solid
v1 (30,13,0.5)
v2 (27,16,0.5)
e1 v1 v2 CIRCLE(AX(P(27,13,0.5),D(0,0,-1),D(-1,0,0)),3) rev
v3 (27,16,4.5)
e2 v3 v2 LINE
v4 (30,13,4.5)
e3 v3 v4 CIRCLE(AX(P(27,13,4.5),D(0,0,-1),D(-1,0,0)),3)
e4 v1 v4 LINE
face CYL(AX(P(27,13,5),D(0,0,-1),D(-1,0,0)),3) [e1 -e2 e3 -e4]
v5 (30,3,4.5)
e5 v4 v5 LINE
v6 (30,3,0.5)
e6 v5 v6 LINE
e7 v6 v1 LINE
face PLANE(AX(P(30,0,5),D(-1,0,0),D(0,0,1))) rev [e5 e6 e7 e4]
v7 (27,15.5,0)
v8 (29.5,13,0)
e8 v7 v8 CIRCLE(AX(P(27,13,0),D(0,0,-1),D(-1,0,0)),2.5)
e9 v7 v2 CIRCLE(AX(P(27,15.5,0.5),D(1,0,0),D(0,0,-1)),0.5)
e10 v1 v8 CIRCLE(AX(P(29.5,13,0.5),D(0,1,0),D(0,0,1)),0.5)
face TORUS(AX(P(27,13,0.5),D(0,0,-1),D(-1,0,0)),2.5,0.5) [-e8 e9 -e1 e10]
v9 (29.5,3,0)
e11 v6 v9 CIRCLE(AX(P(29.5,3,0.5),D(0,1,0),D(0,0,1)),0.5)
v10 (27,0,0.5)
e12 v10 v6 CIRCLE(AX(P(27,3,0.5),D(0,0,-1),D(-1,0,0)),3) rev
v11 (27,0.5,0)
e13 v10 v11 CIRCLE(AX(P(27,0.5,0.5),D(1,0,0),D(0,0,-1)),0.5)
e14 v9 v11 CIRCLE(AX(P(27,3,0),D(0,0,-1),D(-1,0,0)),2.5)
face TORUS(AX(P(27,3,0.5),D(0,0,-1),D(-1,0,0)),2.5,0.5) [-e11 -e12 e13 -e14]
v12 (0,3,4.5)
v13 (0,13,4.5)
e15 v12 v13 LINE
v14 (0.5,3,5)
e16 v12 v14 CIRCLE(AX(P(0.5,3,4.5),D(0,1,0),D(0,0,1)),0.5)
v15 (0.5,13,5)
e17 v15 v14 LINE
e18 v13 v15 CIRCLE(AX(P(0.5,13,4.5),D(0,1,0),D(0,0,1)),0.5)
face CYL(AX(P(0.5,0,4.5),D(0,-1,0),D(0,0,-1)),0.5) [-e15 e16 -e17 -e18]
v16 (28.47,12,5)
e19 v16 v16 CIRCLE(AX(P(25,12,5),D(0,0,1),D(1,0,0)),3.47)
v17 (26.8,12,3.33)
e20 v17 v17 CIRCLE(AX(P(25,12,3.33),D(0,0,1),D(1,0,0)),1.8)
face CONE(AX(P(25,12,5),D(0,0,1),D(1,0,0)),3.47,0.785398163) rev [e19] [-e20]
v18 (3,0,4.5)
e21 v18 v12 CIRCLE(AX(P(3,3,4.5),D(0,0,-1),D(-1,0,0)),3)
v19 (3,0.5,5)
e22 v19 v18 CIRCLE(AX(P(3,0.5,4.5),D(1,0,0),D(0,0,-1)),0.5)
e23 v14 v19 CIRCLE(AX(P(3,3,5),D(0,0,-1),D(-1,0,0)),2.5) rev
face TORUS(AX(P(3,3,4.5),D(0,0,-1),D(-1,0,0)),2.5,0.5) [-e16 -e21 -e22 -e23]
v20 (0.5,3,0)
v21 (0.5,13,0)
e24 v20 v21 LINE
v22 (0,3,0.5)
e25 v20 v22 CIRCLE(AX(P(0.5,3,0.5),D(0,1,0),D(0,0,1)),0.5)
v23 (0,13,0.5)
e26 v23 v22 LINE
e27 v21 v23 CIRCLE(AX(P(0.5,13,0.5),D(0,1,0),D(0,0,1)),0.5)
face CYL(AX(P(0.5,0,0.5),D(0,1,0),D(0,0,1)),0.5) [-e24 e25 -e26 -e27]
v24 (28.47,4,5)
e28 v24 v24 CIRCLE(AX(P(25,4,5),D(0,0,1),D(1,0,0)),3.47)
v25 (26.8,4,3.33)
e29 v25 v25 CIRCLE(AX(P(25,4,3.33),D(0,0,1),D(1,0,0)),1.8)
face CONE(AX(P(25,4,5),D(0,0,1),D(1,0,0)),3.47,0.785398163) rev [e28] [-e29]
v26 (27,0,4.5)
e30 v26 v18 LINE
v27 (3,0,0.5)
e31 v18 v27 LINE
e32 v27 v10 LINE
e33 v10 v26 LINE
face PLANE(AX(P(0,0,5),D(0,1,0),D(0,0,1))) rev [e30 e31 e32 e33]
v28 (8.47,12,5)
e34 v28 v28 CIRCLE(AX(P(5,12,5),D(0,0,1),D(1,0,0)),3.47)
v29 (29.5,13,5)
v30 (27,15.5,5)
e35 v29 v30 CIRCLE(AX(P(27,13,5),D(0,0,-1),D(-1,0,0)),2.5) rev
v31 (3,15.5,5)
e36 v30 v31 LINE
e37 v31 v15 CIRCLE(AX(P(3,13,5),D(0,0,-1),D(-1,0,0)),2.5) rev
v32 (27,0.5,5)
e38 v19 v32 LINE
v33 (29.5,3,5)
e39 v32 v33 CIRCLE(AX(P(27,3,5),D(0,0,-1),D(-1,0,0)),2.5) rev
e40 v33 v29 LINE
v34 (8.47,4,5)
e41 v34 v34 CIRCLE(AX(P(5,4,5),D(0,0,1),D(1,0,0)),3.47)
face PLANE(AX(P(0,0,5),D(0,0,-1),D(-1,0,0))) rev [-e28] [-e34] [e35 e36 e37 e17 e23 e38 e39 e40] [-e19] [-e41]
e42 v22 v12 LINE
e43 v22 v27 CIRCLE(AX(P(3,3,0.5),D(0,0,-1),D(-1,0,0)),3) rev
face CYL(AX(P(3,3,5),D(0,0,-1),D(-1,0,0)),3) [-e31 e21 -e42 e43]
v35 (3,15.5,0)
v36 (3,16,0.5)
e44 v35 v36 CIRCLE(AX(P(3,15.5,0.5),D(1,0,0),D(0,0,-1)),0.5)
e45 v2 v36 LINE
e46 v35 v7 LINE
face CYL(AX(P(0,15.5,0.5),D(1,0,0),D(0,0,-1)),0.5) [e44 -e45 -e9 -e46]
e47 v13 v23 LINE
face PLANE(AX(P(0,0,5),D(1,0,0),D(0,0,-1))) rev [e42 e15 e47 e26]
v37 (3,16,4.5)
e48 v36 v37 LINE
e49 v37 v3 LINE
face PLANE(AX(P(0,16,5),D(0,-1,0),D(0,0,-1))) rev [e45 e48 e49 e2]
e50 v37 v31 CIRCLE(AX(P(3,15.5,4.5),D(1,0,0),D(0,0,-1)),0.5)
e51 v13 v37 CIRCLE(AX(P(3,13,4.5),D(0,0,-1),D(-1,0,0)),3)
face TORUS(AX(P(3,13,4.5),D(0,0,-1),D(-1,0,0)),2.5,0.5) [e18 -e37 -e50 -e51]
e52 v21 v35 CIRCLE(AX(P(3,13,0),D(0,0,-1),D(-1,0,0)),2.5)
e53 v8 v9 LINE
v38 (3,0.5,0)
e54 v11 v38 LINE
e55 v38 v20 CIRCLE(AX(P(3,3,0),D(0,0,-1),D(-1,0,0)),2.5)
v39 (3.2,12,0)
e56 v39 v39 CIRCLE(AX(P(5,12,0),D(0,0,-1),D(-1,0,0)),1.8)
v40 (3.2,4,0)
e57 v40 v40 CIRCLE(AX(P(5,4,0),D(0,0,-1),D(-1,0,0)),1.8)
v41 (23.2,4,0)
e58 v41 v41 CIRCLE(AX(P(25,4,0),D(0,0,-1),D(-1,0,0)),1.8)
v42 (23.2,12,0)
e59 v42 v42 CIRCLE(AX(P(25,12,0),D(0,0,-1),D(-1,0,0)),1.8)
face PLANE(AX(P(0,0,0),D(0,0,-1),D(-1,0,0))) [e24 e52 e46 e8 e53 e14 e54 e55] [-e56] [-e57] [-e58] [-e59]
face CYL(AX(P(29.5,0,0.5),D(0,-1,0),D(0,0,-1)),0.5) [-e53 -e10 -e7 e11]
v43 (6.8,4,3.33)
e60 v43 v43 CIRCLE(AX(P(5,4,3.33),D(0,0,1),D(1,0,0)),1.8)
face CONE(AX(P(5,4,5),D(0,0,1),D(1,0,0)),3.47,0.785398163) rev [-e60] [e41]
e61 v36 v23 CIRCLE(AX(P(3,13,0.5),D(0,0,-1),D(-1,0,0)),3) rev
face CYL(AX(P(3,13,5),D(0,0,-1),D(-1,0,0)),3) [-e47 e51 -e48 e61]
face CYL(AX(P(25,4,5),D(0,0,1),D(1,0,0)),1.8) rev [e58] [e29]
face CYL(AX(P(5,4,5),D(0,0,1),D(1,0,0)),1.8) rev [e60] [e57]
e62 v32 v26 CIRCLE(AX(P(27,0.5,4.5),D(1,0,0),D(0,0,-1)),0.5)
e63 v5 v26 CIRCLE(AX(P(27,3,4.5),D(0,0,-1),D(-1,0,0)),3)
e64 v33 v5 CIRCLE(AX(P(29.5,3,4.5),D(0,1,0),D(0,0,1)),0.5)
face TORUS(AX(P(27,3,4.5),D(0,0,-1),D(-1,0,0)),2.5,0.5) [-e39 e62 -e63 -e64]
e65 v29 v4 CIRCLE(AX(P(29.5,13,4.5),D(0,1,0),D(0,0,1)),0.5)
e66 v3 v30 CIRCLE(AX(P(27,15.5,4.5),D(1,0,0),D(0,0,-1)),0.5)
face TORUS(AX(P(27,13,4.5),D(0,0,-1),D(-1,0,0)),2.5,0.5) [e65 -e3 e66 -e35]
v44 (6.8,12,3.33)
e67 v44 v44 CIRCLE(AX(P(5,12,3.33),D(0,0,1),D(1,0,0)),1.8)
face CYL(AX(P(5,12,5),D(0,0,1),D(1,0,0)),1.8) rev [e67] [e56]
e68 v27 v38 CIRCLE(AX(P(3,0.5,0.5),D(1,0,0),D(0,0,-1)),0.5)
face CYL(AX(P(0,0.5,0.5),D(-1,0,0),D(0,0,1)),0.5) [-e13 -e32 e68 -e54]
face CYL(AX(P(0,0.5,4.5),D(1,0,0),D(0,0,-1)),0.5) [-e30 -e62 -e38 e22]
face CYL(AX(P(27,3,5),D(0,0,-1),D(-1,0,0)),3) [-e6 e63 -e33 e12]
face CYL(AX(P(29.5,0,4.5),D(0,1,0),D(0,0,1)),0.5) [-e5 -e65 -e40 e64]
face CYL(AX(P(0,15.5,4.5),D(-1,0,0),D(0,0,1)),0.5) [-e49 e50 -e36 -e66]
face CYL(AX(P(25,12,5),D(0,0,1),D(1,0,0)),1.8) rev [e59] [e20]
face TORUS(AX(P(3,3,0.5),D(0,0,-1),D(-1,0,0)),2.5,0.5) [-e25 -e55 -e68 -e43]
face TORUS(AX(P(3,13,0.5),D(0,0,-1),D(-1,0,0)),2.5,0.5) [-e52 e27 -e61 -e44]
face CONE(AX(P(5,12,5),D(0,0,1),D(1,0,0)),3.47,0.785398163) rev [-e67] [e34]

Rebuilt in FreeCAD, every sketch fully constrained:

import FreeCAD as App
import Part
import Sketcher
Q = App.Units.Quantity


def edges_at(feature, points):
    """Names of the edges that pass closest to the given points."""
    edges = feature.Shape.Edges
    near = lambda p: min(range(len(edges)), key=lambda i: edges[i].distToShape(Part.Vertex(*p))[0])
    return sorted({f"Edge{near(p) + 1}" for p in points})

doc = App.newDocument("Part")
body = doc.addObject("PartDesign::Body", "Body")

# Sketch on XY plane
sketch1 = body.newObject("Sketcher::SketchObject", "Sketch")
sketch1.AttachmentSupport = (doc.getObject("XY_Plane"), [""])
sketch1.MapMode = "FlatFace"
sketch1.addGeometry([
    Part.LineSegment(App.Vector(0, 16, 0), App.Vector(0, 0, 0)),
    Part.LineSegment(App.Vector(0, 0, 0), App.Vector(30, 0, 0)),
    Part.LineSegment(App.Vector(30, 0, 0), App.Vector(30, 16, 0)),
    Part.LineSegment(App.Vector(30, 16, 0), App.Vector(0, 16, 0)),
], False)
sketch1.addConstraint([
    Sketcher.Constraint("Coincident", 0, 2, 1, 1),
    Sketcher.Constraint("Coincident", 1, 2, 2, 1),
    Sketcher.Constraint("Coincident", 2, 2, 3, 1),
    Sketcher.Constraint("Coincident", 3, 2, 0, 1),
    Sketcher.Constraint("Vertical", 0),
    Sketcher.Constraint("Horizontal", 1),
    Sketcher.Constraint("Vertical", 2),
    Sketcher.Constraint("Horizontal", 3),
    Sketcher.Constraint("Coincident", 0, 2, -1, 1),
    Sketcher.Constraint("DistanceX", 1, 1, 1, 2, Q("30 mm")),
    Sketcher.Constraint("DistanceY", 0, 2, 0, 1, Q("16 mm")),
])
pad1 = body.newObject("PartDesign::Pad", "Pad")
pad1.Profile = sketch1
pad1.Length = 5

# Sketch on XY plane
sketch2 = body.newObject("Sketcher::SketchObject", "Sketch001")
sketch2.AttachmentSupport = (doc.getObject("XY_Plane"), [""])
sketch2.MapMode = "FlatFace"
sketch2.AttachmentOffset = App.Placement(App.Vector(0, 0, 5), App.Rotation())
sketch2.addGeometry([
    Part.Circle(App.Vector(5, 12, 0), App.Vector(0, 0, 1), 1.8),
    Part.Circle(App.Vector(25, 12, 0), App.Vector(0, 0, 1), 1.8),
    Part.Circle(App.Vector(25, 4, 0), App.Vector(0, 0, 1), 1.8),
    Part.Circle(App.Vector(5, 4, 0), App.Vector(0, 0, 1), 1.8),
], False)
sketch2.addConstraint([
    Sketcher.Constraint("Equal", 0, 1),
    Sketcher.Constraint("Equal", 1, 2),
    Sketcher.Constraint("Equal", 2, 3),
    Sketcher.Constraint("Horizontal", 0, 3, 1, 3),
    Sketcher.Constraint("Horizontal", 2, 3, 3, 3),
    Sketcher.Constraint("Vertical", 1, 3, 2, 3),
    Sketcher.Constraint("Vertical", 0, 3, 3, 3),
    Sketcher.Constraint("Diameter", 0, Q("3.6 mm")),
    Sketcher.Constraint("DistanceX", -1, 1, 0, 3, Q("5 mm")),
    Sketcher.Constraint("DistanceY", -1, 1, 0, 3, Q("12 mm")),
    Sketcher.Constraint("DistanceX", -1, 1, 1, 3, Q("25 mm")),
    Sketcher.Constraint("DistanceY", -1, 1, 2, 3, Q("4 mm")),
])
doc.recompute()
hole = body.newObject("PartDesign::Hole", "Hole")
hole.Profile = sketch2
hole.ThreadType = "None"
hole.Diameter = 3.6
hole.DepthType = "ThroughAll"
hole.HoleCutType = "Countersink"
hole.HoleCutDiameter = 6.94
hole.HoleCutCountersinkAngle = 90
doc.recompute()

fillet = body.newObject("PartDesign::Fillet", "Fillet")
fillet.Base = (hole, edges_at(hole, [
    (0, 16, 2.5),
    (30, 16, 2.5),
    (30, 0, 2.5),
    (0, 0, 2.5),
]))
fillet.Radius = 3
doc.recompute()

fillet2 = body.newObject("PartDesign::Fillet", "Fillet001")
fillet2.Base = (fillet, edges_at(fillet, [
    (30, 8, 0),
    (30, 8, 5),
    (0, 8, 0),
    (15, 16, 0),
    (15, 0, 0),
    (0.879, 15.121, 0),
    (0.879, 0.879, 0),
    (29.121, 15.121, 0),
    (29.121, 0.879, 0),
    (15, 0, 5),
    (0, 8, 5),
    (15, 16, 5),
    (0.879, 15.121, 5),
    (0.879, 0.879, 5),
    (29.121, 15.121, 5),
    (29.121, 0.879, 5),
]))
fillet2.Radius = 0.5

doc.recompute()
